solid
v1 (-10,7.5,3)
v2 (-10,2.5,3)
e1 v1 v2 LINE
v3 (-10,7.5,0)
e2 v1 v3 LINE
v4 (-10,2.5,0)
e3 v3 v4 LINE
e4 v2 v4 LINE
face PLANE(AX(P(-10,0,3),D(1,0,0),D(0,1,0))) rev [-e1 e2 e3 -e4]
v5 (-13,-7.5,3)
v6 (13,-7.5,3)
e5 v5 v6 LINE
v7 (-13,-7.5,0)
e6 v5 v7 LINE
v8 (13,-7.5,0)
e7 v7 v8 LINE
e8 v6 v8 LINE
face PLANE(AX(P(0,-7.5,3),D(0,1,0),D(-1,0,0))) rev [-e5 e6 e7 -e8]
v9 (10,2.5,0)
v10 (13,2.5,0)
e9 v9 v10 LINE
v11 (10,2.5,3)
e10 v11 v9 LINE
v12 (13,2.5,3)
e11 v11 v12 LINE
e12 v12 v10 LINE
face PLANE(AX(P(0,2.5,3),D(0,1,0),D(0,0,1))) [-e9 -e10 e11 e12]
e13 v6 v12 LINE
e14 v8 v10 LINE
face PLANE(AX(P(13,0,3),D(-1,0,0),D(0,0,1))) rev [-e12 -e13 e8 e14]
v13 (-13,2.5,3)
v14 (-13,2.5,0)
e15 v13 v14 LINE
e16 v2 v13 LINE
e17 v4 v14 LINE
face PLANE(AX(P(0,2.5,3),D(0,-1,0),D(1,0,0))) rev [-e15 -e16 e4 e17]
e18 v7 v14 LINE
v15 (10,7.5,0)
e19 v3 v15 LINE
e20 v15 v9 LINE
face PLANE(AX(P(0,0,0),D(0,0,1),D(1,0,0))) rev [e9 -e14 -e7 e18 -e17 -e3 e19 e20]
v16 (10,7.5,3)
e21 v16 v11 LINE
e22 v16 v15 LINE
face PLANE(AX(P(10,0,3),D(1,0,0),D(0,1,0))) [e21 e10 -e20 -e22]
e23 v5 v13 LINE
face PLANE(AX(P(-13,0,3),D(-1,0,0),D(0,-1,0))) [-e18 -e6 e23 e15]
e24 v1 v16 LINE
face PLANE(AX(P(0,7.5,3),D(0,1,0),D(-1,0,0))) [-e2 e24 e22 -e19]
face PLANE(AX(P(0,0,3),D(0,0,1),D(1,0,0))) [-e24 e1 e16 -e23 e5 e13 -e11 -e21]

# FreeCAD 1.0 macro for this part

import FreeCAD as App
import Part
import Sketcher
Q = App.Units.Quantity

doc = App.newDocument("Part")
body = doc.addObject("PartDesign::Body", "Body")

sketch1 = doc.addObject("Sketcher::SketchObject", "Sketch")
body.addObject(sketch1)
sketch1.AttachmentSupport = (doc.XY_Plane, [""])
sketch1.MapMode = "FlatFace"
sketch1.addGeometry(Part.LineSegment(App.Vector(-10, 7.5, 0), App.Vector(-10, 2.5, 0)), False)
sketch1.addGeometry(Part.LineSegment(App.Vector(-10, 2.5, 0), App.Vector(-13, 2.5, 0)), False)
sketch1.addGeometry(Part.LineSegment(App.Vector(-13, 2.5, 0), App.Vector(-13, -7.5, 0)), False)
sketch1.addGeometry(Part.LineSegment(App.Vector(-13, -7.5, 0), App.Vector(13, -7.5, 0)), False)
sketch1.addGeometry(Part.LineSegment(App.Vector(13, -7.5, 0), App.Vector(13, 2.5, 0)), False)
sketch1.addGeometry(Part.LineSegment(App.Vector(13, 2.5, 0), App.Vector(10, 2.5, 0)), False)
sketch1.addGeometry(Part.LineSegment(App.Vector(10, 2.5, 0), App.Vector(10, 7.5, 0)), False)
sketch1.addGeometry(Part.LineSegment(App.Vector(10, 7.5, 0), App.Vector(-10, 7.5, 0)), False)
sketch1.addConstraint(Sketcher.Constraint("Coincident", 0, 2, 1, 1))
sketch1.addConstraint(Sketcher.Constraint("Coincident", 1, 2, 2, 1))
sketch1.addConstraint(Sketcher.Constraint("Coincident", 2, 2, 3, 1))
sketch1.addConstraint(Sketcher.Constraint("Coincident", 3, 2, 4, 1))
sketch1.addConstraint(Sketcher.Constraint("Coincident", 4, 2, 5, 1))
sketch1.addConstraint(Sketcher.Constraint("Coincident", 5, 2, 6, 1))
sketch1.addConstraint(Sketcher.Constraint("Coincident", 6, 2, 7, 1))
sketch1.addConstraint(Sketcher.Constraint("Coincident", 7, 2, 0, 1))
sketch1.addConstraint(Sketcher.Constraint("Vertical", 0))
sketch1.addConstraint(Sketcher.Constraint("Horizontal", 1))
sketch1.addConstraint(Sketcher.Constraint("Vertical", 2))
sketch1.addConstraint(Sketcher.Constraint("Horizontal", 3))
sketch1.addConstraint(Sketcher.Constraint("Vertical", 4))
sketch1.addConstraint(Sketcher.Constraint("Horizontal", 5))
sketch1.addConstraint(Sketcher.Constraint("Vertical", 6))
sketch1.addConstraint(Sketcher.Constraint("Horizontal", 7))
sketch1.addConstraint(Sketcher.Constraint("Symmetric", 1, 2, 4, 2, -2))
sketch1.addConstraint(Sketcher.Constraint("Equal", 1, 5))
sketch1.addConstraint(Sketcher.Constraint("DistanceX", 1, 2, 1, 1, Q("3 mm")))
sketch1.addConstraint(Sketcher.Constraint("DistanceX", 3, 1, 3, 2, Q("26 mm")))
sketch1.addConstraint(Sketcher.Constraint("DistanceY", 0, 2, 0, 1, Q("5 mm")))
sketch1.addConstraint(Sketcher.Constraint("DistanceY", 2, 2, 2, 1, Q("10 mm")))
sketch1.addConstraint(Sketcher.Constraint("DistanceY", -1, 1, 0, 2, Q("2.5 mm")))
pad1 = doc.addObject("PartDesign::Pad", "Pad")
body.addObject(pad1)
pad1.Profile = sketch1
pad1.Length = 3

doc.recompute()
